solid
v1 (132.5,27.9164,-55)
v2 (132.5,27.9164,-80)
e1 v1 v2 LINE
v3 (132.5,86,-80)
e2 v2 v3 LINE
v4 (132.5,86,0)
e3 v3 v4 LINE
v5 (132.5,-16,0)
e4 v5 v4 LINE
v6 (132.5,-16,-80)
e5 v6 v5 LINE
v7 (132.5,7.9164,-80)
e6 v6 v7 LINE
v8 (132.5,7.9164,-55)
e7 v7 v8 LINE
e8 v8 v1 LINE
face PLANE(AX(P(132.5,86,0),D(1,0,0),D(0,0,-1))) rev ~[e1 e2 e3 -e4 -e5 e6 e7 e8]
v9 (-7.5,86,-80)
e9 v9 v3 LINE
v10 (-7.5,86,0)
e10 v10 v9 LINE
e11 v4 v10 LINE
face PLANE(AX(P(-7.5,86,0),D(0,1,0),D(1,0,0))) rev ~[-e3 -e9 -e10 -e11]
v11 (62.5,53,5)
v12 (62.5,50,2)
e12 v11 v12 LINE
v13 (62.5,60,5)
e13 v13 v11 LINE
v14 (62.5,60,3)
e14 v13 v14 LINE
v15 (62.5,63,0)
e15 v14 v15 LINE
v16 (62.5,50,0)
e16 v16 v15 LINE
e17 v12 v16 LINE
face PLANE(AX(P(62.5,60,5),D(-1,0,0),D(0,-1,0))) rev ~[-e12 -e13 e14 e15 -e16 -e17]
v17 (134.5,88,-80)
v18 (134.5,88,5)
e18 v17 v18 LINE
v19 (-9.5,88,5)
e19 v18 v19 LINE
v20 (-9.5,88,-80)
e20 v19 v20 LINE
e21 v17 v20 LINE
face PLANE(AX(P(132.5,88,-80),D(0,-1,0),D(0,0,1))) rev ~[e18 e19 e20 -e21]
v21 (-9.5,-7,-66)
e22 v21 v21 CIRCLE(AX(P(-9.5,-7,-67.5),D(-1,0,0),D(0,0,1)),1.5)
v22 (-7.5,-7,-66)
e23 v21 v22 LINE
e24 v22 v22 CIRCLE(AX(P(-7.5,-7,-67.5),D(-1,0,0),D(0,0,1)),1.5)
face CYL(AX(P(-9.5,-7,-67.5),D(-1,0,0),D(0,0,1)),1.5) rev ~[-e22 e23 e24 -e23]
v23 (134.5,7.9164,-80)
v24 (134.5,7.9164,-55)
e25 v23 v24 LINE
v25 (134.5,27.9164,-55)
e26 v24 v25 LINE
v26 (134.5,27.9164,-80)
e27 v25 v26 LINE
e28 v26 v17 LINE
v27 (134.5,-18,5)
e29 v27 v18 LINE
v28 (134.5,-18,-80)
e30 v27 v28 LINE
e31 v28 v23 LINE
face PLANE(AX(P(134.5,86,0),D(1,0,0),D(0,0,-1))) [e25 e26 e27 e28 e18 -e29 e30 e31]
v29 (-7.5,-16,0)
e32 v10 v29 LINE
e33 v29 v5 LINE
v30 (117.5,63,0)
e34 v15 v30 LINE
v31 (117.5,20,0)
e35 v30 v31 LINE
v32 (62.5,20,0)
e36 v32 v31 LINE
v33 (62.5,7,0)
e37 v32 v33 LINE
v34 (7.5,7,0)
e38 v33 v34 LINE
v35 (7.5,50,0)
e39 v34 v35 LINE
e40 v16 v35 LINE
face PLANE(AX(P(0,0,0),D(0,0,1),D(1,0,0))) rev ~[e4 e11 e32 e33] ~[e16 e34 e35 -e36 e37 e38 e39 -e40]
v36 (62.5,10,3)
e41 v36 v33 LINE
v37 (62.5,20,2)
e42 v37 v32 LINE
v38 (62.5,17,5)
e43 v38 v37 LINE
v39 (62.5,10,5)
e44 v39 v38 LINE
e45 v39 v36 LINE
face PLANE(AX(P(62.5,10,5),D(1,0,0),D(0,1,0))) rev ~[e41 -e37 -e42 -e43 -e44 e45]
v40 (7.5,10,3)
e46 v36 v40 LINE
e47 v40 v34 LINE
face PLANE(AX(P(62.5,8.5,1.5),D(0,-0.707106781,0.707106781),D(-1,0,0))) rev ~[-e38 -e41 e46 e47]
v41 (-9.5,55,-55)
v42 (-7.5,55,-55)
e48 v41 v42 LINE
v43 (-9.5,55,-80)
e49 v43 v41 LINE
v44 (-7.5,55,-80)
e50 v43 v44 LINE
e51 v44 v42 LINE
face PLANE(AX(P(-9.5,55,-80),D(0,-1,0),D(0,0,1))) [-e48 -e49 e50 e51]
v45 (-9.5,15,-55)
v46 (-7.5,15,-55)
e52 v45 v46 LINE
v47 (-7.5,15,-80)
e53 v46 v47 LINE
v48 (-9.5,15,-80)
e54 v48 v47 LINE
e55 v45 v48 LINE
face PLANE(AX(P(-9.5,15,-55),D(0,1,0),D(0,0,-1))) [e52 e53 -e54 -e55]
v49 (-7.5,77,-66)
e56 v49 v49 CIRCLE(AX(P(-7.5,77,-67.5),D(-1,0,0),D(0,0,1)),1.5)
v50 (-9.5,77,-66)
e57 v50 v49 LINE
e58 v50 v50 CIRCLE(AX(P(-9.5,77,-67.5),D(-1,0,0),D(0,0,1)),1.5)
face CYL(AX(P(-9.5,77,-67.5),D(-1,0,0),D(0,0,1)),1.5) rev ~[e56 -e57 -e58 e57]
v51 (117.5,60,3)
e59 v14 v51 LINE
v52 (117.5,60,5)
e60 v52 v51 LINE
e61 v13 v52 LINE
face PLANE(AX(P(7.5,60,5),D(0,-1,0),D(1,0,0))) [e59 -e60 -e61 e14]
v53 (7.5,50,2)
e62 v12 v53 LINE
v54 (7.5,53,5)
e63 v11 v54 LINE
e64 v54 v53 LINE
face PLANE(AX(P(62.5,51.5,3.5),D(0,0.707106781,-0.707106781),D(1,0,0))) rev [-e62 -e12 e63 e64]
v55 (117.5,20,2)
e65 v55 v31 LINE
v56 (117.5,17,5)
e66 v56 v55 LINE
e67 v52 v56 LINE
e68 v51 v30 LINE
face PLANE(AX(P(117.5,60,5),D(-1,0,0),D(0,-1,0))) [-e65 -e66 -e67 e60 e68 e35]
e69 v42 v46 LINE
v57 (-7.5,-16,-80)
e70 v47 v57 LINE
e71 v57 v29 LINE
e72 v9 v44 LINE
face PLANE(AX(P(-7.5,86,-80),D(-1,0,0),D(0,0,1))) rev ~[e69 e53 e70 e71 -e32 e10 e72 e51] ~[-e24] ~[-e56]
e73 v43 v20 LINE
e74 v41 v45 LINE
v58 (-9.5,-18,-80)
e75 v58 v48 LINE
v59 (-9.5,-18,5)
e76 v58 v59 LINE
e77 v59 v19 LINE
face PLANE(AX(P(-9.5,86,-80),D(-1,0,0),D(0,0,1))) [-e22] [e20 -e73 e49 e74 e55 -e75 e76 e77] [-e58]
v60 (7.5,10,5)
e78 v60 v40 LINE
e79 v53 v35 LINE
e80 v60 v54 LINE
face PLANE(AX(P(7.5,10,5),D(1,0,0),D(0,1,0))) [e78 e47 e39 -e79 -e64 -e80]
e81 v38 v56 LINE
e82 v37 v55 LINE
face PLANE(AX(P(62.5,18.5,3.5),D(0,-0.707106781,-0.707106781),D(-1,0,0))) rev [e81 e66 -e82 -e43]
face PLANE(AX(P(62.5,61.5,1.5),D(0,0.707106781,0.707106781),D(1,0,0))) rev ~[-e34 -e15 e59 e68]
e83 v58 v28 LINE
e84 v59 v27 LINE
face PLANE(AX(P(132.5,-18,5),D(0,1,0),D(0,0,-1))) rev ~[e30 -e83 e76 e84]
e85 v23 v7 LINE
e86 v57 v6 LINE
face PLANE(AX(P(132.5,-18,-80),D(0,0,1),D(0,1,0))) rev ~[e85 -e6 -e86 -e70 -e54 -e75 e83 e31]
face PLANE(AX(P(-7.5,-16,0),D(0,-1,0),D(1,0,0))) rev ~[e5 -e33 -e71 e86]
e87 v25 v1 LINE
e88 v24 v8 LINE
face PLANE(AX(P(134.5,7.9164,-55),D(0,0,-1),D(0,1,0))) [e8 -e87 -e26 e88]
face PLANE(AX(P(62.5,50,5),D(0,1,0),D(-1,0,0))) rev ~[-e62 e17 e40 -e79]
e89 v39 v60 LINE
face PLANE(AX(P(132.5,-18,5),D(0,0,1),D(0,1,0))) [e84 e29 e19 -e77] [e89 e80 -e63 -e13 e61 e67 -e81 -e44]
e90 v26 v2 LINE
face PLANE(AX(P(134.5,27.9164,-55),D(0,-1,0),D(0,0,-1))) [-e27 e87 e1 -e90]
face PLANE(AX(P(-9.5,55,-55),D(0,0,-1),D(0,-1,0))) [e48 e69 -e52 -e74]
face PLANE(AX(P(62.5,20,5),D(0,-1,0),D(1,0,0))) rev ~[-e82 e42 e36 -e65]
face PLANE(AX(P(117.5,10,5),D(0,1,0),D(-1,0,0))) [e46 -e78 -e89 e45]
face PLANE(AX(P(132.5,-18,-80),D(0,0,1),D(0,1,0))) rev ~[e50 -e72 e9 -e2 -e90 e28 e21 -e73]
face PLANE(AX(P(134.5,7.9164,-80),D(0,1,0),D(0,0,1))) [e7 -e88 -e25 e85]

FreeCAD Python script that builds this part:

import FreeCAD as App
import Part
import Sketcher

V = App.Vector


def edges_at(feature, points):
    """Names of the edges that pass closest to the given points."""
    edges = feature.Shape.Edges
    near = lambda p: min(range(len(edges)), key=lambda i: edges[i].distToShape(Part.Vertex(*p))[0])
    return sorted({f"Edge{near(p) + 1}" for p in points})


def add_polygon(sketch, points):
    """Adds a closed chain of lines whose ends are joined by coincident constraints."""
    first, n = sketch.GeometryCount, len(points)
    for a, b in zip(points, points[1:] + points[:1]):
        sketch.addGeometry(Part.LineSegment(App.Vector(*a, 0), App.Vector(*b, 0)), False)
    for i in range(n):
        sketch.addConstraint(Sketcher.Constraint("Coincident", first + i, 2, first + (i + 1) % n, 1))

doc = App.newDocument("Part")
params = doc.addObject("Spreadsheet::Sheet", "Params")
for row, (alias, value) in enumerate([
    ("sketch1_diameter", "5 mm"),
    ("sketch1_width", "140 mm"),
    ("sketch1_height", "102 mm"),
    ("pad1_length", "5 mm"),
    ("sketch2_height", "50 mm"),
    ("sketch2_width", "110 mm"),
    ("sketch3_height", "85 mm"),
    ("sketch3_width", "140 mm"),
    ("pad2_length", "2 mm"),
    ("sketch4_width", "140 mm"),
    ("sketch4_height", "85 mm"),
    ("pad3_length", "2 mm"),
    ("sketch5_width", "106 mm"),
    ("sketch5_height", "85 mm"),
    ("pad4_length", "2 mm"),
    ("sketch6_width", "106 mm"),
    ("sketch6_height", "85 mm"),
    ("pad5_length", "2 mm"),
    ("sketch7_width", "55 mm"),
    ("sketch7_height", "10 mm"),
    ("pad6_length", "5 mm"),
    ("chamfer_size", "3 mm"),
    ("sketch8_width", "20 mm"),
    ("sketch8_height", "25 mm"),
    ("pocket2_length", "10 mm"),
    ("sketch9_width", "40 mm"),
    ("sketch9_height", "25 mm"),
    ("pocket3_length", "10 mm"),
    ("sketch10_diameter", "3 mm"),
    ("pocket4_length", "10 mm"),
    ("sketch11_diameter", "5 mm"),
    ("pad7_length", "5 mm"),
], start=1):
    params.set(f"A{row}", alias)
    params.set(f"B{row}", "=" + value)
    params.setAlias(f"B{row}", alias)

body = doc.addObject("PartDesign::Body", "Body")

# Sketch on XY plane
sketch1 = doc.addObject("Sketcher::SketchObject", "Sketch")
body.addObject(sketch1)
sketch1.AttachmentSupport = (doc.XY_Plane, [""])
sketch1.MapMode = "FlatFace"
add_polygon(sketch1, [(-7.5, 86), (-7.5, -16), (132.5, -16), (132.5, 86)])  # lines 0-3
sketch1.addGeometry(Part.Circle(V(0, 0, 0), V(0, 0, 1), 2.5), False)  # 4
sketch1.addGeometry(Part.Circle(V(125, 0, 0), V(0, 0, 1), 2.5), False)  # 5
sketch1.addGeometry(Part.Circle(V(0, 70, 0), V(0, 0, 1), 2.5), False)  # 6
sketch1.addGeometry(Part.Circle(V(125, 70, 0), V(0, 0, 1), 2.5), False)  # 7
sketch1.addConstraint(Sketcher.Constraint("Vertical", 0))
sketch1.addConstraint(Sketcher.Constraint("Horizontal", 1))
sketch1.addConstraint(Sketcher.Constraint("Vertical", 2))
sketch1.addConstraint(Sketcher.Constraint("Horizontal", 3))
sketch1.addConstraint(Sketcher.Constraint("Coincident", 4, 3, -1, 1))
sketch1.addConstraint(Sketcher.Constraint("Equal", 4, 5))
sketch1.addConstraint(Sketcher.Constraint("Equal", 5, 6))
sketch1.addConstraint(Sketcher.Constraint("Equal", 6, 7))
sketch1.addConstraint(Sketcher.Constraint("PointOnObject", 5, 3, -1))
sketch1.addConstraint(Sketcher.Constraint("PointOnObject", 6, 3, -2))
sketch1.addConstraint(Sketcher.Constraint("Horizontal", 6, 3, 7, 3))
sketch1.addConstraint(Sketcher.Constraint("Vertical", 5, 3, 7, 3))
sketch1.addConstraint(Sketcher.Constraint("Diameter", 4, 5.0))
sketch1.addConstraint(Sketcher.Constraint("DistanceX", 1, 1, 1, 2, 140.0))
sketch1.addConstraint(Sketcher.Constraint("DistanceY", 0, 2, 0, 1, 102.0))
sketch1.addConstraint(Sketcher.Constraint("DistanceX", -1, 1, 5, 3, 125.0))
sketch1.addConstraint(Sketcher.Constraint("DistanceY", -1, 1, 6, 3, 70.0))
sketch1.addConstraint(Sketcher.Constraint("DistanceY", 0, 2, -1, 1, 16.0))
sketch1.addConstraint(Sketcher.Constraint("DistanceX", 0, 2, -1, 1, 7.5))
sketch1.setExpression("Constraints[16]", "Params.sketch1_diameter")
sketch1.setExpression("Constraints[17]", "Params.sketch1_width")
sketch1.setExpression("Constraints[18]", "Params.sketch1_height")
pad1 = doc.addObject("PartDesign::Pad", "Pad")
body.addObject(pad1)
pad1.Profile = sketch1
pad1.setExpression("Length", "Params.pad1_length")

# Sketch on XY plane
sketch2 = doc.addObject("Sketcher::SketchObject", "Sketch001")
body.addObject(sketch2)
sketch2.AttachmentSupport = (doc.XY_Plane, [""])
sketch2.MapMode = "FlatFace"
sketch2.AttachmentOffset = App.Placement(V(0, 0, 5), App.Rotation())
add_polygon(sketch2, [(118, 60), (8, 60), (8, 10), (118, 10)])  # lines 0-3
sketch2.addConstraint(Sketcher.Constraint("Horizontal", 0))
sketch2.addConstraint(Sketcher.Constraint("Vertical", 1))
sketch2.addConstraint(Sketcher.Constraint("Horizontal", 2))
sketch2.addConstraint(Sketcher.Constraint("Vertical", 3))
sketch2.addConstraint(Sketcher.Constraint("DistanceY", 1, 2, 1, 1, 50.0))
sketch2.addConstraint(Sketcher.Constraint("DistanceX", 0, 2, 0, 1, 110.0))
sketch2.addConstraint(Sketcher.Constraint("DistanceY", -1, 1, 0, 2, 60.0))
sketch2.addConstraint(Sketcher.Constraint("DistanceX", -1, 1, 0, 2, 7.5))
sketch2.setExpression("Constraints[8]", "Params.sketch2_height")
sketch2.setExpression("Constraints[9]", "Params.sketch2_width")
pocket1 = doc.addObject("PartDesign::Pocket", "Pocket")
body.addObject(pocket1)
pocket1.Profile = sketch2
pocket1.Type = "ThroughAll"

# Sketch on XZ plane
sketch3 = doc.addObject("Sketcher::SketchObject", "Sketch002")
body.addObject(sketch3)
sketch3.AttachmentSupport = (doc.XZ_Plane, [""])
sketch3.MapMode = "FlatFace"
sketch3.AttachmentOffset = App.Placement(V(0, 0, -86), App.Rotation())
add_polygon(sketch3, [(132, 5), (132, -80), (-8, -80), (-8, 5)])  # lines 0-3
sketch3.addConstraint(Sketcher.Constraint("Vertical", 0))
sketch3.addConstraint(Sketcher.Constraint("Horizontal", 1))
sketch3.addConstraint(Sketcher.Constraint("Vertical", 2))
sketch3.addConstraint(Sketcher.Constraint("Horizontal", 3))
sketch3.addConstraint(Sketcher.Constraint("DistanceY", 0, 2, 0, 1, 85.0))
sketch3.addConstraint(Sketcher.Constraint("DistanceX", 1, 2, 1, 1, 140.0))
sketch3.addConstraint(Sketcher.Constraint("DistanceY", 0, 2, -1, 1, 80.0))
sketch3.addConstraint(Sketcher.Constraint("DistanceX", -1, 1, 0, 2, 132.5))
sketch3.setExpression("Constraints[8]", "Params.sketch3_height")
sketch3.setExpression("Constraints[9]", "Params.sketch3_width")
pad2 = doc.addObject("PartDesign::Pad", "Pad001")
body.addObject(pad2)
pad2.Profile = sketch3
pad2.setExpression("Length", "Params.pad2_length")
pad2.Reversed = True

# Sketch on XZ plane
sketch4 = doc.addObject("Sketcher::SketchObject", "Sketch003")
body.addObject(sketch4)
sketch4.AttachmentSupport = (doc.XZ_Plane, [""])
sketch4.MapMode = "FlatFace"
sketch4.AttachmentOffset = App.Placement(V(0, 0, 16), App.Rotation())
add_polygon(sketch4, [(132, -80), (132, 5), (-8, 5), (-8, -80)])  # lines 0-3
sketch4.addConstraint(Sketcher.Constraint("Vertical", 0))
sketch4.addConstraint(Sketcher.Constraint("Horizontal", 1))
sketch4.addConstraint(Sketcher.Constraint("Vertical", 2))
sketch4.addConstraint(Sketcher.Constraint("Horizontal", 3))
sketch4.addConstraint(Sketcher.Constraint("DistanceX", 1, 2, 1, 1, 140.0))
sketch4.addConstraint(Sketcher.Constraint("DistanceY", 0, 1, 0, 2, 85.0))
sketch4.addConstraint(Sketcher.Constraint("DistanceY", -1, 1, 0, 2, 5.0))
sketch4.addConstraint(Sketcher.Constraint("DistanceX", -1, 1, 0, 2, 132.5))
sketch4.setExpression("Constraints[8]", "Params.sketch4_width")
sketch4.setExpression("Constraints[9]", "Params.sketch4_height")
pad3 = doc.addObject("PartDesign::Pad", "Pad002")
body.addObject(pad3)
pad3.Profile = sketch4
pad3.setExpression("Length", "Params.pad3_length")

# Sketch on YZ plane
sketch5 = doc.addObject("Sketcher::SketchObject", "Sketch004")
body.addObject(sketch5)
sketch5.AttachmentSupport = (doc.YZ_Plane, [""])
sketch5.MapMode = "FlatFace"
sketch5.AttachmentOffset = App.Placement(V(0, 0, -7.5), App.Rotation())
add_polygon(sketch5, [(-18, -80), (-18, 5), (88, 5), (88, -80)])  # lines 0-3
sketch5.addConstraint(Sketcher.Constraint("Vertical", 0))
sketch5.addConstraint(Sketcher.Constraint("Horizontal", 1))
sketch5.addConstraint(Sketcher.Constraint("Vertical", 2))
sketch5.addConstraint(Sketcher.Constraint("Horizontal", 3))
sketch5.addConstraint(Sketcher.Constraint("DistanceX", 1, 1, 1, 2, 106.0))
sketch5.addConstraint(Sketcher.Constraint("DistanceY", 0, 1, 0, 2, 85.0))
sketch5.addConstraint(Sketcher.Constraint("DistanceX", 0, 2, -1, 1, 18.0))
sketch5.addConstraint(Sketcher.Constraint("DistanceY", -1, 1, 0, 2, 5.0))
sketch5.setExpression("Constraints[8]", "Params.sketch5_width")
sketch5.setExpression("Constraints[9]", "Params.sketch5_height")
pad4 = doc.addObject("PartDesign::Pad", "Pad003")
body.addObject(pad4)
pad4.Profile = sketch5
pad4.setExpression("Length", "Params.pad4_length")
pad4.Reversed = True

# Sketch on YZ plane
sketch6 = doc.addObject("Sketcher::SketchObject", "Sketch005")
body.addObject(sketch6)
sketch6.AttachmentSupport = (doc.YZ_Plane, [""])
sketch6.MapMode = "FlatFace"
sketch6.AttachmentOffset = App.Placement(V(0, 0, 132.5), App.Rotation())
add_polygon(sketch6, [(88, 5), (-18, 5), (-18, -80), (88, -80)])  # lines 0-3
sketch6.addConstraint(Sketcher.Constraint("Horizontal", 0))
sketch6.addConstraint(Sketcher.Constraint("Vertical", 1))
sketch6.addConstraint(Sketcher.Constraint("Horizontal", 2))
sketch6.addConstraint(Sketcher.Constraint("Vertical", 3))
sketch6.addConstraint(Sketcher.Constraint("DistanceX", 0, 2, 0, 1, 106.0))
sketch6.addConstraint(Sketcher.Constraint("DistanceY", 1, 2, 1, 1, 85.0))
sketch6.addConstraint(Sketcher.Constraint("DistanceX", 0, 2, -1, 1, 18.0))
sketch6.addConstraint(Sketcher.Constraint("DistanceY", -1, 1, 0, 2, 5.0))
sketch6.setExpression("Constraints[8]", "Params.sketch6_width")
sketch6.setExpression("Constraints[9]", "Params.sketch6_height")
pad5 = doc.addObject("PartDesign::Pad", "Pad004")
body.addObject(pad5)
pad5.Profile = sketch6
pad5.setExpression("Length", "Params.pad5_length")

# Sketch on XY plane
sketch7 = doc.addObject("Sketcher::SketchObject", "Sketch006")
body.addObject(sketch7)
sketch7.AttachmentSupport = (doc.XY_Plane, [""])
sketch7.MapMode = "FlatFace"
sketch7.AttachmentOffset = App.Placement(V(0, 0, 5), App.Rotation())
add_polygon(sketch7, [(62, 20), (62, 10), (118, 10), (118, 20)])  # lines 0-3
add_polygon(sketch7, [(62, 60), (8, 60), (8, 50), (62, 50)])  # lines 4-7
sketch7.addConstraint(Sketcher.Constraint("Vertical", 0))
sketch7.addConstraint(Sketcher.Constraint("Horizontal", 1))
sketch7.addConstraint(Sketcher.Constraint("Vertical", 2))
sketch7.addConstraint(Sketcher.Constraint("Horizontal", 3))
sketch7.addConstraint(Sketcher.Constraint("Horizontal", 4))
sketch7.addConstraint(Sketcher.Constraint("Vertical", 5))
sketch7.addConstraint(Sketcher.Constraint("Horizontal", 6))
sketch7.addConstraint(Sketcher.Constraint("Vertical", 7))
sketch7.addConstraint(Sketcher.Constraint("Vertical", 3, 2, 6, 2))
sketch7.addConstraint(Sketcher.Constraint("Equal", 3, 4))
sketch7.addConstraint(Sketcher.Constraint("Equal", 2, 5))
sketch7.addConstraint(Sketcher.Constraint("DistanceX", 1, 1, 1, 2, 55.0))
sketch7.addConstraint(Sketcher.Constraint("DistanceY", 0, 2, 0, 1, 10.0))
sketch7.addConstraint(Sketcher.Constraint("DistanceY", -1, 1, 0, 2, 10.0))
sketch7.addConstraint(Sketcher.Constraint("DistanceY", -1, 1, 4, 2, 60.0))
sketch7.addConstraint(Sketcher.Constraint("DistanceX", -1, 1, 0, 2, 62.5))
sketch7.setExpression("Constraints[19]", "Params.sketch7_width")
sketch7.setExpression("Constraints[20]", "Params.sketch7_height")
pad6 = doc.addObject("PartDesign::Pad", "Pad005")
body.addObject(pad6)
pad6.Profile = sketch7
pad6.setExpression("Length", "Params.pad6_length")
pad6.Reversed = True
doc.recompute()

chamfer = doc.addObject("PartDesign::Chamfer", "Chamfer")
body.addObject(chamfer)
chamfer.Base = (pad6, edges_at(pad6, [
    (35, 10, 0),
    (90, 60, 0),
    (90, 20, 5),
    (35, 50, 5),
]))
chamfer.setExpression("Size", "Params.chamfer_size")

# Sketch on YZ plane
sketch8 = doc.addObject("Sketcher::SketchObject", "Sketch007")
body.addObject(sketch8)
sketch8.AttachmentSupport = (doc.YZ_Plane, [""])
sketch8.MapMode = "FlatFace"
sketch8.AttachmentOffset = App.Placement(V(0, 0, 134.5), App.Rotation())
add_polygon(sketch8, [(8, -55), (8, -80), (28, -80), (28, -55)])  # lines 0-3
sketch8.addConstraint(Sketcher.Constraint("Vertical", 0))
sketch8.addConstraint(Sketcher.Constraint("Horizontal", 1))
sketch8.addConstraint(Sketcher.Constraint("Vertical", 2))
sketch8.addConstraint(Sketcher.Constraint("Horizontal", 3))
sketch8.addConstraint(Sketcher.Constraint("DistanceX", 1, 1, 1, 2, 20.0))
sketch8.addConstraint(Sketcher.Constraint("DistanceY", 0, 2, 0, 1, 25.0))
sketch8.addConstraint(Sketcher.Constraint("DistanceY", 0, 2, -1, 1, 80.0))
sketch8.addConstraint(Sketcher.Constraint("DistanceX", -1, 1, 0, 2, 7.9164))
sketch8.setExpression("Constraints[8]", "Params.sketch8_width")
sketch8.setExpression("Constraints[9]", "Params.sketch8_height")
pocket2 = doc.addObject("PartDesign::Pocket", "Pocket001")
body.addObject(pocket2)
pocket2.Profile = sketch8
pocket2.setExpression("Length", "Params.pocket2_length")

# Sketch on YZ plane
sketch9 = doc.addObject("Sketcher::SketchObject", "Sketch008")
body.addObject(sketch9)
sketch9.AttachmentSupport = (doc.YZ_Plane, [""])
sketch9.MapMode = "FlatFace"
sketch9.AttachmentOffset = App.Placement(V(0, 0, -9.5), App.Rotation())
add_polygon(sketch9, [(55, -80), (15, -80), (15, -55), (55, -55)])  # lines 0-3
sketch9.addConstraint(Sketcher.Constraint("Horizontal", 0))
sketch9.addConstraint(Sketcher.Constraint("Vertical", 1))
sketch9.addConstraint(Sketcher.Constraint("Horizontal", 2))
sketch9.addConstraint(Sketcher.Constraint("Vertical", 3))
sketch9.addConstraint(Sketcher.Constraint("DistanceX", 0, 2, 0, 1, 40.0))
sketch9.addConstraint(Sketcher.Constraint("DistanceY", 1, 1, 1, 2, 25.0))
sketch9.addConstraint(Sketcher.Constraint("DistanceX", -1, 1, 0, 2, 15.0))
sketch9.addConstraint(Sketcher.Constraint("DistanceY", 0, 2, -1, 1, 80.0))
sketch9.setExpression("Constraints[8]", "Params.sketch9_width")
sketch9.setExpression("Constraints[9]", "Params.sketch9_height")
pocket3 = doc.addObject("PartDesign::Pocket", "Pocket002")
body.addObject(pocket3)
pocket3.Profile = sketch9
pocket3.setExpression("Length", "Params.pocket3_length")
pocket3.Reversed = True

# Sketch on YZ plane
sketch10 = doc.addObject("Sketcher::SketchObject", "Sketch009")
body.addObject(sketch10)
sketch10.AttachmentSupport = (doc.YZ_Plane, [""])
sketch10.MapMode = "FlatFace"
sketch10.AttachmentOffset = App.Placement(V(0, 0, -9.5), App.Rotation())
sketch10.addGeometry(Part.Circle(V(-7, -67.5, 0), V(0, 0, 1), 1.5), False)
sketch10.addGeometry(Part.Circle(V(77, -67.5, 0), V(0, 0, 1), 1.5), False)
sketch10.addConstraint(Sketcher.Constraint("Equal", 0, 1))
sketch10.addConstraint(Sketcher.Constraint("Horizontal", 0, 3, 1, 3))
sketch10.addConstraint(Sketcher.Constraint("Diameter", 0, 3.0))
sketch10.addConstraint(Sketcher.Constraint("DistanceX", 0, 3, 1, 3, 84.0))
sketch10.addConstraint(Sketcher.Constraint("DistanceX", 0, 3, -1, 1, 7.0))
sketch10.addConstraint(Sketcher.Constraint("DistanceY", 0, 3, -1, 1, 67.5))
sketch10.setExpression("Constraints[2]", "Params.sketch10_diameter")
pocket4 = doc.addObject("PartDesign::Pocket", "Pocket003")
body.addObject(pocket4)
pocket4.Profile = sketch10
pocket4.setExpression("Length", "Params.pocket4_length")
pocket4.Reversed = True

# Sketch on XY plane
sketch11 = doc.addObject("Sketcher::SketchObject", "Sketch010")
body.addObject(sketch11)
sketch11.AttachmentSupport = (doc.XY_Plane, [""])
sketch11.MapMode = "FlatFace"
sketch11.AttachmentOffset = App.Placement(V(0, 0, 5), App.Rotation())
sketch11.addGeometry(Part.Circle(V(0, 0, 0), V(0, 0, 1), 2.5), False)
sketch11.addGeometry(Part.Circle(V(0, 70, 0), V(0, 0, 1), 2.5), False)
sketch11.addGeometry(Part.Circle(V(125, 0, 0), V(0, 0, 1), 2.5), False)
sketch11.addGeometry(Part.Circle(V(125, 70, 0), V(0, 0, 1), 2.5), False)
sketch11.addConstraint(Sketcher.Constraint("Coincident", 0, 3, -1, 1))
sketch11.addConstraint(Sketcher.Constraint("Equal", 0, 1))
sketch11.addConstraint(Sketcher.Constraint("Equal", 1, 2))
sketch11.addConstraint(Sketcher.Constraint("Equal", 2, 3))
sketch11.addConstraint(Sketcher.Constraint("PointOnObject", 1, 3, -2))
sketch11.addConstraint(Sketcher.Constraint("PointOnObject", 2, 3, -1))
sketch11.addConstraint(Sketcher.Constraint("Horizontal", 1, 3, 3, 3))
sketch11.addConstraint(Sketcher.Constraint("Vertical", 2, 3, 3, 3))
sketch11.addConstraint(Sketcher.Constraint("Diameter", 0, 5.0))
sketch11.addConstraint(Sketcher.Constraint("DistanceY", -1, 1, 1, 3, 70.0))
sketch11.addConstraint(Sketcher.Constraint("DistanceX", -1, 1, 2, 3, 125.0))
sketch11.setExpression("Constraints[8]", "Params.sketch11_diameter")
pad7 = doc.addObject("PartDesign::Pad", "Pad006")
body.addObject(pad7)
pad7.Profile = sketch11
pad7.setExpression("Length", "Params.pad7_length")
pad7.Reversed = True

doc.recompute()
